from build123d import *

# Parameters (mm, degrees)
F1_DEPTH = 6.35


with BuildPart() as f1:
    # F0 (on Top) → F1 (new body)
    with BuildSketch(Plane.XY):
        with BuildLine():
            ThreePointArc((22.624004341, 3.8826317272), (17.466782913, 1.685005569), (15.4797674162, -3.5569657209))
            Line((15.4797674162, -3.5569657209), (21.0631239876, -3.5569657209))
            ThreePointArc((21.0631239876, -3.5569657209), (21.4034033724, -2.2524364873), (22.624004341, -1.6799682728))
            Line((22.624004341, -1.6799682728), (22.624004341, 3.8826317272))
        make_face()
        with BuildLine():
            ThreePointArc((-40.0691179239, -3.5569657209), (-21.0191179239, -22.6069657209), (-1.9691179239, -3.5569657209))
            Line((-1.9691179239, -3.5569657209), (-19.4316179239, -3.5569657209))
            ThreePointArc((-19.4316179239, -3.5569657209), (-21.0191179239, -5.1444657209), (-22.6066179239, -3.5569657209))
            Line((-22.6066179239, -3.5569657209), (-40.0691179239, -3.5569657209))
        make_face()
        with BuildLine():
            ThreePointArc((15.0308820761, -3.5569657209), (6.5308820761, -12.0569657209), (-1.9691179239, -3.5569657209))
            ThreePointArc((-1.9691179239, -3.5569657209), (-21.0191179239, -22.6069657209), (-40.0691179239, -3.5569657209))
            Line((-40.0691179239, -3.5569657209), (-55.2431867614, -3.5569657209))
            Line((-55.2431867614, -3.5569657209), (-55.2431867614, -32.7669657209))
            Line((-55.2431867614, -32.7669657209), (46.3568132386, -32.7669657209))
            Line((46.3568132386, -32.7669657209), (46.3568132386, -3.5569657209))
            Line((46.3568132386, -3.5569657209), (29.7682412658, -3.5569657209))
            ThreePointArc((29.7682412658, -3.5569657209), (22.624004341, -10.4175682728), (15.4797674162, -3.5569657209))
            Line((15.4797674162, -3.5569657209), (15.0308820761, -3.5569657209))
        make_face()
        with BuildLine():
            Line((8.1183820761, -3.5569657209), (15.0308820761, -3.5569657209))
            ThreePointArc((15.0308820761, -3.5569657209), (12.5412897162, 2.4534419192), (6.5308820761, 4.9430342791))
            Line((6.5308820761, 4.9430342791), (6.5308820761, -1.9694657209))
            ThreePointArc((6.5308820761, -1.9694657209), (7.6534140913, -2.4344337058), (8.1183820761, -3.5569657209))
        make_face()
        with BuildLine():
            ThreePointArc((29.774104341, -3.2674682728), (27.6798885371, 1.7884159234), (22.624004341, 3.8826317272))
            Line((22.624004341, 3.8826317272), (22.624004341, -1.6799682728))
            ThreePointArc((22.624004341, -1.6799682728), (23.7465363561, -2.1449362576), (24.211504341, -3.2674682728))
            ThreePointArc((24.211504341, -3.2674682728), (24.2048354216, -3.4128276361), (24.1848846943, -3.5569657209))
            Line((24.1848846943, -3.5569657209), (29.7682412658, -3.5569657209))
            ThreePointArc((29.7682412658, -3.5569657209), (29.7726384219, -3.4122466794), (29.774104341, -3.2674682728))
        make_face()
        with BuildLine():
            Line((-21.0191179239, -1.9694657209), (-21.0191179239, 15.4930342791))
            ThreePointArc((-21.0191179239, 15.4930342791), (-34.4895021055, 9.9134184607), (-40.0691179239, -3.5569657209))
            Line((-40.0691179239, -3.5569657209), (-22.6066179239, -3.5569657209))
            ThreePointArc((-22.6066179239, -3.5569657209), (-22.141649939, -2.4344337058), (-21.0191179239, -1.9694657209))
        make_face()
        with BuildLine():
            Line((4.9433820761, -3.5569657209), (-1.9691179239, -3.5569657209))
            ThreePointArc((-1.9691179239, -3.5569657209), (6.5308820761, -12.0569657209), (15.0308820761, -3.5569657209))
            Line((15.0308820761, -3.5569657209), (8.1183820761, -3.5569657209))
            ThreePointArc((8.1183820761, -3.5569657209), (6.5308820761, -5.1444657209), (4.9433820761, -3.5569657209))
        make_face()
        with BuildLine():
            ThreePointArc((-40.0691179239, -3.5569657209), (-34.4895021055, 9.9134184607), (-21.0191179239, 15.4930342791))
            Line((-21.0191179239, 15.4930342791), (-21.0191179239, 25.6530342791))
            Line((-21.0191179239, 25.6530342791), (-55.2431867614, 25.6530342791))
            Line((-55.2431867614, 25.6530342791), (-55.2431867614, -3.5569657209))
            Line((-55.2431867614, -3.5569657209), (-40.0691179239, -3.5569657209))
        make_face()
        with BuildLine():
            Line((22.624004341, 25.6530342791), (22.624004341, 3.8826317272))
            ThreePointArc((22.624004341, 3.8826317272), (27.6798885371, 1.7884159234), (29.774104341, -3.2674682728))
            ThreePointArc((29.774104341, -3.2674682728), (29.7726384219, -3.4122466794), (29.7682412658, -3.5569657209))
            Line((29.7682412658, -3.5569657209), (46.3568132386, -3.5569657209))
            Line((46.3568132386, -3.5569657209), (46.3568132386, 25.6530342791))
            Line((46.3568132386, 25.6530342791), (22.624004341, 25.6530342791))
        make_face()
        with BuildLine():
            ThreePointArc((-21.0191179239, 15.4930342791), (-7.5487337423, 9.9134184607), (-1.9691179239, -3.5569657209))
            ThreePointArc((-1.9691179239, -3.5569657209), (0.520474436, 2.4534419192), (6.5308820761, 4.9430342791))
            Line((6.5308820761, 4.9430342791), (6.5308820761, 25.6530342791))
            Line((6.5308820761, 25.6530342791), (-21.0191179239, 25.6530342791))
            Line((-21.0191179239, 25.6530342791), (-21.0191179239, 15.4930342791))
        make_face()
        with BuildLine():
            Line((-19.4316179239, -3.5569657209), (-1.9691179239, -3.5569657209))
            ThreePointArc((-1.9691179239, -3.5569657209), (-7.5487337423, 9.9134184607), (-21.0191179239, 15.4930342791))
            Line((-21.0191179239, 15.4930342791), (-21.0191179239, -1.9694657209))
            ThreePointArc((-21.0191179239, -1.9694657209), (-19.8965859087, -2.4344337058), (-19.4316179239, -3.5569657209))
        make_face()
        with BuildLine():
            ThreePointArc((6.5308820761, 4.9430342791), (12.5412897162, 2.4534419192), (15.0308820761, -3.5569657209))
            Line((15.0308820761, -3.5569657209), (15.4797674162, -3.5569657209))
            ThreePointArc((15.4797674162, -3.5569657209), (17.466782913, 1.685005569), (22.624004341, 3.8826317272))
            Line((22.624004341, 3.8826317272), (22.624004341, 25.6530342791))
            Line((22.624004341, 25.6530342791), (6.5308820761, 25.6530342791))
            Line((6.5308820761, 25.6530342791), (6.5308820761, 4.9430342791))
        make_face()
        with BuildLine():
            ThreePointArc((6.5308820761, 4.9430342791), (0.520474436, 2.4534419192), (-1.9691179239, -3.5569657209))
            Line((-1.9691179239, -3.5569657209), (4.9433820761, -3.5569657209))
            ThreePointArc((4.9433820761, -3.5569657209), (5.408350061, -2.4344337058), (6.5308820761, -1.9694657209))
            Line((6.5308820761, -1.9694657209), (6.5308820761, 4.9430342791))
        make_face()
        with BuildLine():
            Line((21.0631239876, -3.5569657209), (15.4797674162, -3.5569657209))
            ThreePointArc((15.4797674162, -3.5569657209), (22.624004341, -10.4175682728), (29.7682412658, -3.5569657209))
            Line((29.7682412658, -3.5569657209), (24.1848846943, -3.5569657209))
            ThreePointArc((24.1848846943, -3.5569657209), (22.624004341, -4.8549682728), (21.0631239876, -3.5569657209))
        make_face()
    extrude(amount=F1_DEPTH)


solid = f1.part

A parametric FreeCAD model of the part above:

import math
import FreeCAD as App
import Part
import Sketcher
from FreeCAD import Vector
Q = App.Units.Quantity

doc = App.newDocument("Part")
body = doc.addObject("PartDesign::Body", "Body")

# Sketch on XY plane
sketch1 = body.newObject("Sketcher::SketchObject", "Sketch")
sketch1.AttachmentSupport = (doc.getObject("XY_Plane"), [""])
sketch1.MapMode = "FlatFace"
sketch1.addGeometry([
    Part.LineSegment(Vector(46.36, 25.65, 0), Vector(-55.24, 25.65, 0)),  # 0
    Part.LineSegment(Vector(-55.24, 25.65, 0), Vector(-55.24, -32.77, 0)),  # 1
    Part.LineSegment(Vector(-55.24, -32.77, 0), Vector(46.36, -32.77, 0)),  # 2
    Part.LineSegment(Vector(46.36, -32.77, 0), Vector(46.36, 25.65, 0)),  # 3
    Part.ArcOfCircle(Part.Circle(Vector(-21.02, -3.56, 0), Vector(0, 0, 1), 1.59), math.radians(90), math.radians(180)),  # 4
    Part.ArcOfCircle(Part.Circle(Vector(-21.02, -3.56, 0), Vector(0, 0, 1), 1.59), math.radians(0), math.radians(90)),  # 5
    Part.ArcOfCircle(Part.Circle(Vector(-21.02, -3.56, 0), Vector(0, 0, 1), 1.59), math.radians(180), math.radians(360)),  # 6
    Part.ArcOfCircle(Part.Circle(Vector(22.62, -3.27, 0), Vector(0, 0, 1), 1.59), math.radians(90), math.radians(191)),  # 7
    Part.ArcOfCircle(Part.Circle(Vector(22.62, -3.27, 0), Vector(0, 0, 1), 1.59), math.radians(0), math.radians(90)),  # 8
    Part.ArcOfCircle(Part.Circle(Vector(22.62, -3.27, 0), Vector(0, 0, 1), 1.59), math.radians(-10.51), math.radians(0)),  # 9
    Part.ArcOfCircle(Part.Circle(Vector(22.62, -3.27, 0), Vector(0, 0, 1), 1.59), math.radians(-169), math.radians(-11)),  # 10
    Part.ArcOfCircle(Part.Circle(Vector(6.53, -3.56, 0), Vector(0, 0, 1), 1.59), math.radians(0), math.radians(90)),  # 11
    Part.ArcOfCircle(Part.Circle(Vector(6.53, -3.56, 0), Vector(0, 0, 1), 1.59), math.radians(180), math.radians(360)),  # 12
    Part.ArcOfCircle(Part.Circle(Vector(6.53, -3.56, 0), Vector(0, 0, 1), 1.59), math.radians(90), math.radians(180)),  # 13
], False)
sketch1.addConstraint([
    Sketcher.Constraint("Coincident", 0, 2, 1, 1),
    Sketcher.Constraint("Coincident", 1, 2, 2, 1),
    Sketcher.Constraint("Coincident", 2, 2, 3, 1),
    Sketcher.Constraint("Coincident", 3, 2, 0, 1),
    Sketcher.Constraint("Tangent", 4, 1, 5, 2),
    Sketcher.Constraint("Tangent", 5, 1, 6, 2),
    Sketcher.Constraint("Tangent", 6, 1, 4, 2),
    Sketcher.Constraint("Tangent", 7, 1, 8, 2),
    Sketcher.Constraint("Tangent", 8, 1, 9, 2),
    Sketcher.Constraint("Tangent", 9, 1, 10, 2),
    Sketcher.Constraint("Tangent", 10, 1, 7, 2),
    Sketcher.Constraint("Tangent", 11, 1, 12, 2),
    Sketcher.Constraint("Tangent", 12, 1, 13, 2),
    Sketcher.Constraint("Tangent", 13, 1, 11, 2),
    Sketcher.Constraint("Horizontal", 0),
    Sketcher.Constraint("Vertical", 1),
    Sketcher.Constraint("Horizontal", 2),
    Sketcher.Constraint("Vertical", 3),
    Sketcher.Constraint("Equal", 6, 7),
    Sketcher.Constraint("Equal", 7, 8),
    Sketcher.Constraint("Equal", 10, 11),
    Sketcher.Constraint("Horizontal", 6, 3, 11, 3),
    Sketcher.Constraint("Horizontal", 13, 3, 5, 1),
    Sketcher.Constraint("Horizontal", 5, 1, 6, 1),
    Sketcher.Constraint("Horizontal", 10, 3, 8, 1),
    Sketcher.Constraint("Horizontal", 6, 1, 9, 1),
    Sketcher.Constraint("Horizontal", 9, 1, 10, 1),
    Sketcher.Constraint("Horizontal", 10, 1, 11, 1),
    Sketcher.Constraint("Horizontal", 11, 1, 12, 1),
    Sketcher.Constraint("Vertical", 6, 3, 4, 1),
    Sketcher.Constraint("Vertical", 10, 3, 7, 1),
    Sketcher.Constraint("Vertical", 12, 3, 13, 1),
    Sketcher.Constraint("DistanceX", 0, 2, 0, 1, Q("4 in")),
    Sketcher.Constraint("DistanceY", 1, 2, 1, 1, Q("2.3 in")),
    Sketcher.Constraint("Radius", 4, Q("0.0625 in")),
    Sketcher.Constraint("DistanceY", 4, 3, 0, 2, Q("1.15 in")),
    Sketcher.Constraint("DistanceX", 4, 3, 11, 3, Q("27.55 mm")),
    Sketcher.Constraint("DistanceY", 7, 3, -1, 1, Q("3.267468 mm")),
    Sketcher.Constraint("DistanceX", 0, 2, 4, 3, Q("34.224069 mm")),
    Sketcher.Constraint("DistanceX", 7, 3, 2, 2, Q("23.732809 mm")),
    Sketcher.Constraint("DistanceX", 9, 1, 8, 1, Q("0.02662 mm")),
    Sketcher.Constraint("DistanceX", 4, 3, -1, 1, Q("21.019118 mm")),
])
pad1 = body.newObject("PartDesign::Pad", "Pad")
pad1.Profile = sketch1
pad1.Length = Q("0.25 in")

doc.recompute()
